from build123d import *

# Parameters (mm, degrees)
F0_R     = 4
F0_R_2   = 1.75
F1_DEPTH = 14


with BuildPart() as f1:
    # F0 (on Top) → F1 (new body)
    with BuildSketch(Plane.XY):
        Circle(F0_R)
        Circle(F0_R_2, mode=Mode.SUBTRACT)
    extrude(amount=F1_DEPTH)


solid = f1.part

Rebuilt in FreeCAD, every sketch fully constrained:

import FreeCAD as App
import Part
import Sketcher
from FreeCAD import Vector
Q = App.Units.Quantity

doc = App.newDocument("Part")
body = doc.addObject("PartDesign::Body", "Body")

# Sketch on XY plane
sketch1 = doc.addObject("Sketcher::SketchObject", "Sketch")
body.addObject(sketch1)
sketch1.AttachmentSupport = (doc.XY_Plane, [""])
sketch1.MapMode = "FlatFace"
sketch1.addGeometry([
    Part.Circle(Vector(0, 0, 0), Vector(0, 0, 1), 4),
    Part.Circle(Vector(0, 0, 0), Vector(0, 0, 1), 1.8),
], False)
sketch1.addConstraint([
    Sketcher.Constraint("Coincident", 0, 3, -1, 1),
    Sketcher.Constraint("Coincident", 1, 3, -1, 1),
    Sketcher.Constraint("Diameter", 0, Q("8 mm")),
    Sketcher.Constraint("Diameter", 1, Q("3.5 mm")),
])
pad1 = doc.addObject("PartDesign::Pad", "Pad")
body.addObject(pad1)
pad1.Profile = sketch1
pad1.Length = 14

doc.recompute()
